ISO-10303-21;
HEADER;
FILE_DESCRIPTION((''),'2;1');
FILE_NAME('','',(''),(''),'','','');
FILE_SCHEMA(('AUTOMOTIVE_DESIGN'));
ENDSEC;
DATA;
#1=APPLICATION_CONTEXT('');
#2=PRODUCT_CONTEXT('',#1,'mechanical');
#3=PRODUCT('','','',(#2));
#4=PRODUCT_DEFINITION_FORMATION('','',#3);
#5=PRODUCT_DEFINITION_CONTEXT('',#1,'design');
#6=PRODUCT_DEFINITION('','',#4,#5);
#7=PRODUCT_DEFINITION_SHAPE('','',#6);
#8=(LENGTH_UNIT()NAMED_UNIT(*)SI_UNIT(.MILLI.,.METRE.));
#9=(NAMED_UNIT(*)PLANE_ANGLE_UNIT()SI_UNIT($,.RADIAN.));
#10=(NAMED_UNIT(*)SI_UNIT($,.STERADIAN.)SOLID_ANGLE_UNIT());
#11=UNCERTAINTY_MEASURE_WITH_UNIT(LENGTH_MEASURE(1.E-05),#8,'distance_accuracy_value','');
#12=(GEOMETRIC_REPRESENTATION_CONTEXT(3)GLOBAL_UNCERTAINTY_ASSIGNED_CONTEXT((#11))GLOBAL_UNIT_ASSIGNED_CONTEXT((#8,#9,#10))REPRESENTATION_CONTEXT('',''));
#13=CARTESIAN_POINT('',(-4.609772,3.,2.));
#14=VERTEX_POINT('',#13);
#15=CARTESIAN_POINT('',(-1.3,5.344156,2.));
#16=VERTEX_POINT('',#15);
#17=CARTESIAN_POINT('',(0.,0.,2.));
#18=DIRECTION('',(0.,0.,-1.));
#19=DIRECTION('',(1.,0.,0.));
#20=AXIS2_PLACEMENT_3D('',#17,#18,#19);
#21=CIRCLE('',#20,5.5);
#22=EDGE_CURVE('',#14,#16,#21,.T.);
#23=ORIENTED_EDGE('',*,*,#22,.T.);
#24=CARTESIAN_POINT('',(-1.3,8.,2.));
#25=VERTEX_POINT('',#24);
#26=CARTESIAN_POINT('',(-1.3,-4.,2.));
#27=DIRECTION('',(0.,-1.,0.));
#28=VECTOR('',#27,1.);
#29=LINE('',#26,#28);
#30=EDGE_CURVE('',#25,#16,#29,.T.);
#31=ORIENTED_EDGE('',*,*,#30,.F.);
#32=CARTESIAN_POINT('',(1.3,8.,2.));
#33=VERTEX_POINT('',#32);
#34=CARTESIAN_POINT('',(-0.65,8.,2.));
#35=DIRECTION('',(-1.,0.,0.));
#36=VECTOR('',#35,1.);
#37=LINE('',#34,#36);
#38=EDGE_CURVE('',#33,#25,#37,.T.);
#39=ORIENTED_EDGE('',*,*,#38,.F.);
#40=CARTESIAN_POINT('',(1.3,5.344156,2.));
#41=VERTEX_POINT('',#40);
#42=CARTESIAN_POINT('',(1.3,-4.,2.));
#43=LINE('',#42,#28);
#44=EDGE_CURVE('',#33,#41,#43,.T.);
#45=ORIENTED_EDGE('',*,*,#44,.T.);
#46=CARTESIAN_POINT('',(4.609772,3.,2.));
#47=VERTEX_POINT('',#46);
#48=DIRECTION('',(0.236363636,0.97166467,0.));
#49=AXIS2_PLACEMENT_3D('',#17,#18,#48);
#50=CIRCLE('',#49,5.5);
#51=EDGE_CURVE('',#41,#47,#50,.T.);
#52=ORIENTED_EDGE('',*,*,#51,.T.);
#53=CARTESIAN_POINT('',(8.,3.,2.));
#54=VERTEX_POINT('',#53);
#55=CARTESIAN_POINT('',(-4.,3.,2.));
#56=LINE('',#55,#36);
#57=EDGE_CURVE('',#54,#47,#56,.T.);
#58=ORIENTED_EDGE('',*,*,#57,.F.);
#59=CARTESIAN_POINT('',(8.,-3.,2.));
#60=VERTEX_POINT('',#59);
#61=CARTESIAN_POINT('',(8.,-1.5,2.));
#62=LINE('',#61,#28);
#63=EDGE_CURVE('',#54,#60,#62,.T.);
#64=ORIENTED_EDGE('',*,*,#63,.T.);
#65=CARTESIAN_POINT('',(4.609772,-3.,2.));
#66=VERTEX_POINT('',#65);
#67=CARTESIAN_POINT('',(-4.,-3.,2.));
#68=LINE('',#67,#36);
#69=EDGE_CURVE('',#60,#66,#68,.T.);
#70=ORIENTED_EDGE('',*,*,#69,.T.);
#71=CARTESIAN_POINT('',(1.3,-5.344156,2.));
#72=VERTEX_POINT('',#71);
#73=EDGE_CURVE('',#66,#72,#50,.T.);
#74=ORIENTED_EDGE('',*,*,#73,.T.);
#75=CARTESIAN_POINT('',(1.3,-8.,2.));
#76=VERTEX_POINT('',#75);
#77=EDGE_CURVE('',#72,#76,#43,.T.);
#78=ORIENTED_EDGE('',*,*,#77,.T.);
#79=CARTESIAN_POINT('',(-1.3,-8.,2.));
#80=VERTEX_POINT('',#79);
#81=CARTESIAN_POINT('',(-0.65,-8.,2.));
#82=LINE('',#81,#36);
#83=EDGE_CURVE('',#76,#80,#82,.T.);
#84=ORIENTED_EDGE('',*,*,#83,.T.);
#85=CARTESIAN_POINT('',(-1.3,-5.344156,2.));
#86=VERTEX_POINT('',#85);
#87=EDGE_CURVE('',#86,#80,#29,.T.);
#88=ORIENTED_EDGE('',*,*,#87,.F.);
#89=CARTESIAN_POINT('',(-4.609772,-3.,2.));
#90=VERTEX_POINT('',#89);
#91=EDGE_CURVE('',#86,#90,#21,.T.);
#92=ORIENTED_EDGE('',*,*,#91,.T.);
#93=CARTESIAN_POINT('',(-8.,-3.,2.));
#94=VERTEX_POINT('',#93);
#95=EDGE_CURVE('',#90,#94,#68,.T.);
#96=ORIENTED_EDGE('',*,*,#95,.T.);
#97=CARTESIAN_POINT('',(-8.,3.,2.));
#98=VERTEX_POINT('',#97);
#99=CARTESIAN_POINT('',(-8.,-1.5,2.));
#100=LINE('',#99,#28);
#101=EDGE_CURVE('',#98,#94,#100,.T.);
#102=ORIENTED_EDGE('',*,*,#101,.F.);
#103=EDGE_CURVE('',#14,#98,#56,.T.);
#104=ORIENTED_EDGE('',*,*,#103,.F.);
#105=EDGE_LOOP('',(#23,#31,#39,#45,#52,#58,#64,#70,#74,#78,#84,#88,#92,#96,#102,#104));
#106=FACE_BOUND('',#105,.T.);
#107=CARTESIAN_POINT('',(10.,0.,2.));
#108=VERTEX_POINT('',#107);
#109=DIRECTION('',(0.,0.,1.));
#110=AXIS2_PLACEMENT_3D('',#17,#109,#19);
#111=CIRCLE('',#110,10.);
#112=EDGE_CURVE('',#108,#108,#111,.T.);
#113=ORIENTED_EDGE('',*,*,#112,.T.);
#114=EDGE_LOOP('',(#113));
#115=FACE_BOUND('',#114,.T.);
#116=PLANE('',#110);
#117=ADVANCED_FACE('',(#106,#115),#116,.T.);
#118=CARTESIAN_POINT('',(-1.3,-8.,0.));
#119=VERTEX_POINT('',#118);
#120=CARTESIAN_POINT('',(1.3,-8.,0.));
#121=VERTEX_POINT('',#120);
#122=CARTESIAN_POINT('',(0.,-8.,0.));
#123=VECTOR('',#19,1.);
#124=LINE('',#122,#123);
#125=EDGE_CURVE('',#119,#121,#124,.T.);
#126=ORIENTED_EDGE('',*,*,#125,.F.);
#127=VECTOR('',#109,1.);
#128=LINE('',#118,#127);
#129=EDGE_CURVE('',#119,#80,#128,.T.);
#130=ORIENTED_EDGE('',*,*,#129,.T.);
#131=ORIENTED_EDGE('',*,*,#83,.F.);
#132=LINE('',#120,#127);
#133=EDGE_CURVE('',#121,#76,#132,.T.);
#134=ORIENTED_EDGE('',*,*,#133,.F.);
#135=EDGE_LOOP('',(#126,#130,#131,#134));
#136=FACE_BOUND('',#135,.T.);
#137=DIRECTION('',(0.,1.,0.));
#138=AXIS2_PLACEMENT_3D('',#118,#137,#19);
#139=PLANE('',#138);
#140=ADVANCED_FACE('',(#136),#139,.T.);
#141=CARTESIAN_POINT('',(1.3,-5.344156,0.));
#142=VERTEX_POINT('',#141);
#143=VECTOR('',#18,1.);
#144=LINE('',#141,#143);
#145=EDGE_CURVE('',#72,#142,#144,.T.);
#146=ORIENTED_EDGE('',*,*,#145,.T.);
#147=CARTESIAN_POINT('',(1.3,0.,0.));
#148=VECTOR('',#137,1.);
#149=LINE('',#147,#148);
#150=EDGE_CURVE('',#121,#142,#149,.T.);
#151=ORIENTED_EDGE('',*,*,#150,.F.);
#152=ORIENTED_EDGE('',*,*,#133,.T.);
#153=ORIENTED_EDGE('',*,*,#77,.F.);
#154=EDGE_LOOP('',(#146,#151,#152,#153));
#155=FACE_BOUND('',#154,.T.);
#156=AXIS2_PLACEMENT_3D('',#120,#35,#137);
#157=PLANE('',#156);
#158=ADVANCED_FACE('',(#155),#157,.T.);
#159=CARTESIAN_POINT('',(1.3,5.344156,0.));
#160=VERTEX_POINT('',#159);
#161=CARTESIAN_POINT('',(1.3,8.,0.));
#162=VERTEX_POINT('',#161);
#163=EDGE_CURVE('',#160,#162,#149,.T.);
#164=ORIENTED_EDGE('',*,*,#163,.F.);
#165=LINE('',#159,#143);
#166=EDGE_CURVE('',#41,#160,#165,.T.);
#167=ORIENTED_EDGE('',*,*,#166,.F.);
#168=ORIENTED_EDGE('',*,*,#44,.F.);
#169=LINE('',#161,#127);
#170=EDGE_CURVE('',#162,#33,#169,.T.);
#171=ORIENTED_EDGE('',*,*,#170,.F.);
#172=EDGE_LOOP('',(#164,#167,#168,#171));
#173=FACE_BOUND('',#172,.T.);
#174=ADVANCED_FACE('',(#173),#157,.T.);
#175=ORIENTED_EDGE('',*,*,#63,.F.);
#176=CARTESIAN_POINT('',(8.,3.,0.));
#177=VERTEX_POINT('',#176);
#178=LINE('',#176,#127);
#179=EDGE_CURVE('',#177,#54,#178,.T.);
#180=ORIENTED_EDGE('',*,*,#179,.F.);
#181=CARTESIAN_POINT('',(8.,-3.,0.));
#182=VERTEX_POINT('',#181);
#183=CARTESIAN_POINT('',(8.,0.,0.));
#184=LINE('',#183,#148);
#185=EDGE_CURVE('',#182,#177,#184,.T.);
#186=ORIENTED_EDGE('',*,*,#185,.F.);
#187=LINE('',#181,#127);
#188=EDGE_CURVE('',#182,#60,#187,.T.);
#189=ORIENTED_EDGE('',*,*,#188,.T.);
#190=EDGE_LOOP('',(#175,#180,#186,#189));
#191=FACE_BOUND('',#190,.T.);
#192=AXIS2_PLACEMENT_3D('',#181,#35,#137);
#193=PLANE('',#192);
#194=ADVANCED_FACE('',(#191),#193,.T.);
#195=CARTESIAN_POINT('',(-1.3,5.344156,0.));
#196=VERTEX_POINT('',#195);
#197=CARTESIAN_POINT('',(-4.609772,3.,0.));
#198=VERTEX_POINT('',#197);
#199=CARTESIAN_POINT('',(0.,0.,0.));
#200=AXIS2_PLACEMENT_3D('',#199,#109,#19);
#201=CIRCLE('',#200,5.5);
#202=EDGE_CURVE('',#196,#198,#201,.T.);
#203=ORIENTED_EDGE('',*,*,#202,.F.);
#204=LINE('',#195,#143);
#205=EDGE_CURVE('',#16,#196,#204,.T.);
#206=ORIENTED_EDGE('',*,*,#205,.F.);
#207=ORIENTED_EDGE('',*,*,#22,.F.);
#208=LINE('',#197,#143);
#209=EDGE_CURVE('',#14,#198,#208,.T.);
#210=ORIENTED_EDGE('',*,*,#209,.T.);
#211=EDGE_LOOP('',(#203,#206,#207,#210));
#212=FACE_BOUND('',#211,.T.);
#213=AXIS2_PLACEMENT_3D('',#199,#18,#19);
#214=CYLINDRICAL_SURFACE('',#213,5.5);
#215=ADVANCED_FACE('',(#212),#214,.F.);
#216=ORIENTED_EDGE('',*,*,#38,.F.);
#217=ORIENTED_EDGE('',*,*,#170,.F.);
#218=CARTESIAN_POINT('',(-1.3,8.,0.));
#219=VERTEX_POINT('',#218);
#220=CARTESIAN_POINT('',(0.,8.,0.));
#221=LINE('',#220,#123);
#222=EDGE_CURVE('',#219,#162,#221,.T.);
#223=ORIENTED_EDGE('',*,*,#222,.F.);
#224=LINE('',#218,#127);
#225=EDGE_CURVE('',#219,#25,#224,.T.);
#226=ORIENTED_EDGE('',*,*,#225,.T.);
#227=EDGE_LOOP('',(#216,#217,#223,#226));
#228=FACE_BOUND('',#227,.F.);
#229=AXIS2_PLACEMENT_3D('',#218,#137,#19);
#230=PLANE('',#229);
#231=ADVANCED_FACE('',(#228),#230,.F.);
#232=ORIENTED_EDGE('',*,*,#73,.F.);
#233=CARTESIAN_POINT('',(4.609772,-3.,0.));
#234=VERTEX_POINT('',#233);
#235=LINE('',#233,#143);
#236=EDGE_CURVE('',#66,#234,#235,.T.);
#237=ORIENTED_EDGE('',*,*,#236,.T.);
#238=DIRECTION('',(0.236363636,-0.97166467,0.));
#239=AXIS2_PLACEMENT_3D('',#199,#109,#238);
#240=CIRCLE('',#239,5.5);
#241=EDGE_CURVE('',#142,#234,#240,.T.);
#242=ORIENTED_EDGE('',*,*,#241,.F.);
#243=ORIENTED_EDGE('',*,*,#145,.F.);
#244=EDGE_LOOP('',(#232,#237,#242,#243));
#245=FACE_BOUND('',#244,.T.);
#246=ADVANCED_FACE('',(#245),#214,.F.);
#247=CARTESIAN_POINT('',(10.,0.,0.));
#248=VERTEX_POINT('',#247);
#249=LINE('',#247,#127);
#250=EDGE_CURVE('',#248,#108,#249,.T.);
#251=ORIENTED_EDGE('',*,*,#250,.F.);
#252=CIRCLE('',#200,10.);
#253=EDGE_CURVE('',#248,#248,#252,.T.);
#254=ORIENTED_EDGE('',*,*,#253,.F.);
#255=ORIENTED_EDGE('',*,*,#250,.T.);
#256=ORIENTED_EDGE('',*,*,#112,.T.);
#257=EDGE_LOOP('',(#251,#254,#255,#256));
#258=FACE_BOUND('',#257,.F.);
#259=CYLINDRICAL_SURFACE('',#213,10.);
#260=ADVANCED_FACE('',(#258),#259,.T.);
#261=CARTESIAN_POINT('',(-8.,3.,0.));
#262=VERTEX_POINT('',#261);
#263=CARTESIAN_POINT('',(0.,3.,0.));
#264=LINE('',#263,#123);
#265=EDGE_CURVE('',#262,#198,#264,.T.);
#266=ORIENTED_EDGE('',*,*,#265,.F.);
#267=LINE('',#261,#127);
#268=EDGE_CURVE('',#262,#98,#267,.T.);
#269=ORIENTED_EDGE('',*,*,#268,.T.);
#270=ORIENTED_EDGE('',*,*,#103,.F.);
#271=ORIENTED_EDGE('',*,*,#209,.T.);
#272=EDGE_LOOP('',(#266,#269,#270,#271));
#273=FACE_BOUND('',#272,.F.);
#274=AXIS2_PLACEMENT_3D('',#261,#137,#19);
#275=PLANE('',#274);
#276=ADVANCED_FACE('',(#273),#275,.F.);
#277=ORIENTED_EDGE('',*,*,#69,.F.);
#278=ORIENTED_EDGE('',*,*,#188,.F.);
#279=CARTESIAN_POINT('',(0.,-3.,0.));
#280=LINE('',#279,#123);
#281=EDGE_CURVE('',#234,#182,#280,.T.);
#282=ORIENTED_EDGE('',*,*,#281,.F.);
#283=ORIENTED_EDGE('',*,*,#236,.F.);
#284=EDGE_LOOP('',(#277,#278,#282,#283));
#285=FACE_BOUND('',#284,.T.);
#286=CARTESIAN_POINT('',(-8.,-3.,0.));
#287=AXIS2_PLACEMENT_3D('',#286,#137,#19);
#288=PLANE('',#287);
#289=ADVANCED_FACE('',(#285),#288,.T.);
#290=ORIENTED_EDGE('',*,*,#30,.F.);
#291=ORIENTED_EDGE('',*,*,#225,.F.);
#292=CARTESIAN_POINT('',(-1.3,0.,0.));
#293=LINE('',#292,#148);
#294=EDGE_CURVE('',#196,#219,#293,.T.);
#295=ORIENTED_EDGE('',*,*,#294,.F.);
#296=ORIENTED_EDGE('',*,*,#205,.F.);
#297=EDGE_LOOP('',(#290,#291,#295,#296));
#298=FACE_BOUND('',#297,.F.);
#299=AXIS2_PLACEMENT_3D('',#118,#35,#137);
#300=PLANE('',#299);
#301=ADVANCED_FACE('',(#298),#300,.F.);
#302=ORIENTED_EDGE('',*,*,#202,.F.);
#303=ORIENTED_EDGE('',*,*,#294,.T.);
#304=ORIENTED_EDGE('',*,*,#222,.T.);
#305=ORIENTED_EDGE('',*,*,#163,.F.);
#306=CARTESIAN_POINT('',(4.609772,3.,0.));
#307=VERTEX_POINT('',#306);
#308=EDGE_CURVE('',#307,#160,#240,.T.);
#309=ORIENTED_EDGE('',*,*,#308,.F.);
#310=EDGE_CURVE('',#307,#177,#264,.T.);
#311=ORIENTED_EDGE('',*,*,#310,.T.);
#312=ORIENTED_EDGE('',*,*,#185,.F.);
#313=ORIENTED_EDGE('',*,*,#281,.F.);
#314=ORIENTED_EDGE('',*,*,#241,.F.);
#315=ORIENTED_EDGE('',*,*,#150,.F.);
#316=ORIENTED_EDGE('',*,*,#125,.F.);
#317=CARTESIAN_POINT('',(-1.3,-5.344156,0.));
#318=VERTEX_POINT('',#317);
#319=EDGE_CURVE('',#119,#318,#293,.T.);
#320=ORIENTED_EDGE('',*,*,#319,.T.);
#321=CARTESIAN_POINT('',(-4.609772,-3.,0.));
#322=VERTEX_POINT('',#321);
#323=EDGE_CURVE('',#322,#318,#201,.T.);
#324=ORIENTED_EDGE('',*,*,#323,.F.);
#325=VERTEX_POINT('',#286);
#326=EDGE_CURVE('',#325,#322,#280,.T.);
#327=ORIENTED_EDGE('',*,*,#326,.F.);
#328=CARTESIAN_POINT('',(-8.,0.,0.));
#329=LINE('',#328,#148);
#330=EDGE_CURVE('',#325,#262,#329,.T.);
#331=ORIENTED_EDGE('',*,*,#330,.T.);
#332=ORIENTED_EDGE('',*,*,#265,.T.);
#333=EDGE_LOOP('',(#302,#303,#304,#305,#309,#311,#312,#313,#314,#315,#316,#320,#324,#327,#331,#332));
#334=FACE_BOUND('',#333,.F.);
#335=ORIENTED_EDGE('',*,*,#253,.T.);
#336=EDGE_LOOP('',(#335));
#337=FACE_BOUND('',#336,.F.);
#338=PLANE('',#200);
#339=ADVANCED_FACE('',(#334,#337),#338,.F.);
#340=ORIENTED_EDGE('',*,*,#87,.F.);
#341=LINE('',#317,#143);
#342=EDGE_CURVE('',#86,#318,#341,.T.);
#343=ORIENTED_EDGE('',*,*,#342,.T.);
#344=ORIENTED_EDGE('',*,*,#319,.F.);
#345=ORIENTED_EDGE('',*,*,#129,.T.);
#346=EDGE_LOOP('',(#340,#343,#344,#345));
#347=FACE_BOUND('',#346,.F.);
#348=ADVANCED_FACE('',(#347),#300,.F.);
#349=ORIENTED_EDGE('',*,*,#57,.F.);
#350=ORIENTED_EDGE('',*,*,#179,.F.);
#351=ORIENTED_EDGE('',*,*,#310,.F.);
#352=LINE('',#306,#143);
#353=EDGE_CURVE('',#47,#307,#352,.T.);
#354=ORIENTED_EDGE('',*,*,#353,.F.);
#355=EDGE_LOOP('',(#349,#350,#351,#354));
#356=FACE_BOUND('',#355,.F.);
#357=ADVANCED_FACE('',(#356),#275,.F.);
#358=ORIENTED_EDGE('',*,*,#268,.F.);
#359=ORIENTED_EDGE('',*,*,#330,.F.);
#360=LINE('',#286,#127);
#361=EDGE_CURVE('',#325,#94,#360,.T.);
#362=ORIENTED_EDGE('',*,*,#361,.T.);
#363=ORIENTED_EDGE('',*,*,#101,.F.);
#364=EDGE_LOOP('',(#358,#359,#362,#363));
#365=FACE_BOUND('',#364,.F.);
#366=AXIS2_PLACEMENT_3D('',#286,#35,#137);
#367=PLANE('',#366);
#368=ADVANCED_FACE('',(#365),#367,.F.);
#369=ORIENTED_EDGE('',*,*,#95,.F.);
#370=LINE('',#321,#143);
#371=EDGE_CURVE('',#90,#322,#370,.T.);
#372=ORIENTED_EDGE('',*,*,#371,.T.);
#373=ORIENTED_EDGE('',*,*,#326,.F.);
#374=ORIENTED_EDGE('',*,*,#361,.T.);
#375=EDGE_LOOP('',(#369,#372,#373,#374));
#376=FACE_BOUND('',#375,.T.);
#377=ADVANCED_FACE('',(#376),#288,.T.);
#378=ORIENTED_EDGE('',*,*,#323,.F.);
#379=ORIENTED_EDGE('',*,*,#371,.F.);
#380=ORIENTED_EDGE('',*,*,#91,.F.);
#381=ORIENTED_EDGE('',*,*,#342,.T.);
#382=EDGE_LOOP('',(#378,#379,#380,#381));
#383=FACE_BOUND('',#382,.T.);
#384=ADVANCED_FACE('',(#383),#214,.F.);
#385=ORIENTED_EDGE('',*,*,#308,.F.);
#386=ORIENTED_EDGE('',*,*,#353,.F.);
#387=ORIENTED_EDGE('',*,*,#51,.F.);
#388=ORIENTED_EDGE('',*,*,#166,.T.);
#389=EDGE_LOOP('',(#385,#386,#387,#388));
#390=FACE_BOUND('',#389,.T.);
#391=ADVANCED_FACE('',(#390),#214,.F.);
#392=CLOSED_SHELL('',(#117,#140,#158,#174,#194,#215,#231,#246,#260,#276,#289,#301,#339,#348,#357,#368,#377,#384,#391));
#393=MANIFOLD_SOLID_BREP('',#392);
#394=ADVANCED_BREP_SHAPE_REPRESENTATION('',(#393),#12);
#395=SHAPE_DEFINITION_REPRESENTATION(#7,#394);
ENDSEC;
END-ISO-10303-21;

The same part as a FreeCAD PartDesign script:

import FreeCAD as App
import Part
import Sketcher
from FreeCAD import Vector


def add_polygon(sketch, points):
    """Adds a closed chain of lines whose ends are joined by coincident constraints."""
    first, n = sketch.GeometryCount, len(points)
    for a, b in zip(points, points[1:] + points[:1]):
        sketch.addGeometry(Part.LineSegment(App.Vector(*a, 0), App.Vector(*b, 0)), False)
    for i in range(n):
        sketch.addConstraint(Sketcher.Constraint("Coincident", first + i, 2, first + (i + 1) % n, 1))

doc = App.newDocument("Part")
params = doc.addObject("Spreadsheet::Sheet", "Params")
for row, (alias, value) in enumerate([
    ("sketch1_diameter", "20 mm"),
    ("pad1_length", "2 mm"),
    ("sketch2_diameter", "11 mm"),
    ("sketch3_height", "16 mm"),
    ("sketch3_width", "2.6 mm"),
    ("sketch4_width", "16 mm"),
    ("sketch4_height", "6 mm"),
], start=1):
    params.set(f"A{row}", alias)
    params.set(f"B{row}", "=" + value)
    params.setAlias(f"B{row}", alias)

body = doc.addObject("PartDesign::Body", "Body")

# Sketch on XY plane
sketch1 = body.newObject("Sketcher::SketchObject", "Sketch")
sketch1.AttachmentSupport = (doc.getObject("XY_Plane"), [""])
sketch1.MapMode = "FlatFace"
sketch1.addGeometry(Part.Circle(Vector(0, 0, 0), Vector(0, 0, 1), 10), False)
sketch1.addConstraint([
    Sketcher.Constraint("Coincident", 0, 3, -1, 1),
    Sketcher.Constraint("Diameter", 0, 20.0),
])
sketch1.setExpression("Constraints[1]", "Params.sketch1_diameter")
pad1 = body.newObject("PartDesign::Pad", "Pad")
pad1.Profile = sketch1
pad1.setExpression("Length", "Params.pad1_length")

# Sketch on XY plane
sketch2 = body.newObject("Sketcher::SketchObject", "Sketch001")
sketch2.AttachmentSupport = (doc.getObject("XY_Plane"), [""])
sketch2.MapMode = "FlatFace"
sketch2.addGeometry(Part.Circle(Vector(0, 0, 0), Vector(0, 0, 1), 6), False)
sketch2.addConstraint([
    Sketcher.Constraint("Coincident", 0, 3, -1, 1),
    Sketcher.Constraint("Diameter", 0, 11.0),
])
sketch2.setExpression("Constraints[1]", "Params.sketch2_diameter")
pocket1 = body.newObject("PartDesign::Pocket", "Pocket")
pocket1.Profile = sketch2
pocket1.Type = "ThroughAll"
pocket1.Reversed = True

# Sketch on XY plane
sketch3 = body.newObject("Sketcher::SketchObject", "Sketch002")
sketch3.AttachmentSupport = (doc.getObject("XY_Plane"), [""])
sketch3.MapMode = "FlatFace"
add_polygon(sketch3, [(-1.3, 8), (-1.3, -8), (1.3, -8), (1.3, 8)])  # lines 0-3
sketch3.addConstraint([
    Sketcher.Constraint("Vertical", 0),
    Sketcher.Constraint("Horizontal", 1),
    Sketcher.Constraint("Vertical", 2),
    Sketcher.Constraint("Horizontal", 3),
    Sketcher.Constraint("Symmetric", 0, 2, 2, 2, -1, 1),
    Sketcher.Constraint("DistanceY", 0, 2, 0, 1, 16.0),
    Sketcher.Constraint("DistanceX", 1, 1, 1, 2, 2.6),
])
sketch3.setExpression("Constraints[9]", "Params.sketch3_height")
sketch3.setExpression("Constraints[10]", "Params.sketch3_width")
pocket2 = body.newObject("PartDesign::Pocket", "Pocket001")
pocket2.Profile = sketch3
pocket2.Type = "ThroughAll"
pocket2.Reversed = True

# Sketch on XY plane
sketch4 = body.newObject("Sketcher::SketchObject", "Sketch003")
sketch4.AttachmentSupport = (doc.getObject("XY_Plane"), [""])
sketch4.MapMode = "FlatFace"
add_polygon(sketch4, [(-8, 3), (-8, -3), (8, -3), (8, 3)])  # lines 0-3
sketch4.addConstraint([
    Sketcher.Constraint("Vertical", 0),
    Sketcher.Constraint("Horizontal", 1),
    Sketcher.Constraint("Vertical", 2),
    Sketcher.Constraint("Horizontal", 3),
    Sketcher.Constraint("Symmetric", 0, 2, 2, 2, -1, 1),
    Sketcher.Constraint("DistanceX", 1, 1, 1, 2, 16.0),
    Sketcher.Constraint("DistanceY", 0, 2, 0, 1, 6.0),
])
sketch4.setExpression("Constraints[9]", "Params.sketch4_width")
sketch4.setExpression("Constraints[10]", "Params.sketch4_height")
pocket3 = body.newObject("PartDesign::Pocket", "Pocket002")
pocket3.Profile = sketch4
pocket3.Type = "ThroughAll"
pocket3.Reversed = True

doc.recompute()
